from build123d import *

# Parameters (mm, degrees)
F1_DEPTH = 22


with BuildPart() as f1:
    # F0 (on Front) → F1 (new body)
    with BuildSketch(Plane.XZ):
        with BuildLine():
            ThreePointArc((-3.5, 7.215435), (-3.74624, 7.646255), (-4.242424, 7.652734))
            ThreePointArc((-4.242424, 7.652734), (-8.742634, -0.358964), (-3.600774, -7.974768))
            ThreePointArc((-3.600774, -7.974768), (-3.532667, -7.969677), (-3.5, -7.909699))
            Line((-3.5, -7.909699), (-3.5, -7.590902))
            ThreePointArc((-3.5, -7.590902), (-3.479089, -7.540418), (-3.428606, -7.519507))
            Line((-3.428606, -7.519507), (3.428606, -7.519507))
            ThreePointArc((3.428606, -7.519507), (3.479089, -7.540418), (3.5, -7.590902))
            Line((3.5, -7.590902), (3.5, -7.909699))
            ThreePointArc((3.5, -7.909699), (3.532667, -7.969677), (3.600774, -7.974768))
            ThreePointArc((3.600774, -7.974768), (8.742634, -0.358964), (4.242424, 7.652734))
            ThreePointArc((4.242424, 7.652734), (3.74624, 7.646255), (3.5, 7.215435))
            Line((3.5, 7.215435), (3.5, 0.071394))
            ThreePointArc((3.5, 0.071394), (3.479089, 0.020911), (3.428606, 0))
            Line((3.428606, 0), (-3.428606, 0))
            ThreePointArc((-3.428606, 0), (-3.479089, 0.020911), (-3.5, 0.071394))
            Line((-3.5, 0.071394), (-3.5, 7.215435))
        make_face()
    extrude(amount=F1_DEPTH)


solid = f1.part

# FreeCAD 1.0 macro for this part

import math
import FreeCAD as App
import Part
import Sketcher

doc = App.newDocument("Part")
body = doc.addObject("PartDesign::Body", "Body")

sketch1 = doc.addObject("Sketcher::SketchObject", "Sketch")
body.addObject(sketch1)
sketch1.AttachmentSupport = (doc.XZ_Plane, [""])
sketch1.MapMode = "FlatFace"
sketch1.addGeometry([
    Part.ArcOfCircle(Part.Circle(App.Vector(-4, 7.22, 0), App.Vector(0, 0, 1), 0.5), math.radians(0), math.radians(119)),
    Part.ArcOfCircle(Part.Circle(App.Vector(0, 0, 0), App.Vector(0, 0, 1), 8.75), math.radians(119), math.radians(246)),
    Part.ArcOfCircle(Part.Circle(App.Vector(-3.57, -7.91, 0), App.Vector(0, 0, 1), 0.07), math.radians(-114), math.radians(0)),
    Part.LineSegment(App.Vector(-3.5, -7.91, 0), App.Vector(-3.5, -7.59, 0)),
    Part.ArcOfCircle(Part.Circle(App.Vector(-3.43, -7.59, 0), App.Vector(0, 0, 1), 0.07), math.radians(90), math.radians(180)),
    Part.LineSegment(App.Vector(-3.43, -7.52, 0), App.Vector(3.43, -7.52, 0)),
    Part.ArcOfCircle(Part.Circle(App.Vector(3.43, -7.59, 0), App.Vector(0, 0, 1), 0.07), math.radians(0), math.radians(90)),
    Part.LineSegment(App.Vector(3.5, -7.59, 0), App.Vector(3.5, -7.91, 0)),
    Part.ArcOfCircle(Part.Circle(App.Vector(3.57, -7.91, 0), App.Vector(0, 0, 1), 0.07), math.radians(180), math.radians(294)),
    Part.ArcOfCircle(Part.Circle(App.Vector(0, 0, 0), App.Vector(0, 0, 1), 8.75), math.radians(-66), math.radians(61)),
    Part.ArcOfCircle(Part.Circle(App.Vector(4, 7.22, 0), App.Vector(0, 0, 1), 0.5), math.radians(61), math.radians(180)),
    Part.LineSegment(App.Vector(3.5, 7.22, 0), App.Vector(3.5, 0.07, 0)),
    Part.ArcOfCircle(Part.Circle(App.Vector(3.43, 0.07, 0), App.Vector(0, 0, 1), 0.07), math.radians(-90), math.radians(0)),
    Part.LineSegment(App.Vector(3.43, 0, 0), App.Vector(-3.43, 0, 0)),
    Part.ArcOfCircle(Part.Circle(App.Vector(-3.43, 0.07, 0), App.Vector(0, 0, 1), 0.07), math.radians(-180), math.radians(-90)),
    Part.LineSegment(App.Vector(-3.5, 0.07, 0), App.Vector(-3.5, 7.22, 0)),
], False)
sketch1.addConstraint([
    Sketcher.Constraint("Tangent", 0, 2, 1, 1),
    Sketcher.Constraint("Tangent", 1, 2, 2, 1),
    Sketcher.Constraint("Coincident", 2, 2, 3, 1),
    Sketcher.Constraint("Coincident", 3, 2, 4, 2),
    Sketcher.Constraint("Coincident", 4, 1, 5, 1),
    Sketcher.Constraint("Coincident", 5, 2, 6, 2),
    Sketcher.Constraint("Coincident", 6, 1, 7, 1),
    Sketcher.Constraint("Coincident", 7, 2, 8, 1),
    Sketcher.Constraint("Tangent", 8, 2, 9, 1),
    Sketcher.Constraint("Tangent", 9, 2, 10, 1),
    Sketcher.Constraint("Tangent", 10, 2, 11, 1),
    Sketcher.Constraint("Coincident", 11, 2, 12, 2),
    Sketcher.Constraint("Coincident", 12, 1, 13, 1),
    Sketcher.Constraint("Coincident", 13, 2, 14, 2),
    Sketcher.Constraint("Coincident", 14, 1, 15, 1),
    Sketcher.Constraint("Tangent", 15, 2, 0, 1),
    Sketcher.Constraint("Vertical", 3),
    Sketcher.Constraint("Horizontal", 5),
    Sketcher.Constraint("Vertical", 7),
    Sketcher.Constraint("Vertical", 11),
    Sketcher.Constraint("Horizontal", 13),
    Sketcher.Constraint("Vertical", 15),
    Sketcher.Constraint("Coincident", 1, 3, -1, 1),
    Sketcher.Constraint("Coincident", 9, 3, -1, 1),
    Sketcher.Constraint("Equal", 2, 4),
    Sketcher.Constraint("Equal", 4, 6),
    Sketcher.Constraint("Equal", 6, 8),
    Sketcher.Constraint("Equal", 1, 9),
    Sketcher.Constraint("Equal", 0, 10),
    Sketcher.Constraint("Equal", 8, 12),
    Sketcher.Constraint("Equal", 12, 14),
    Sketcher.Constraint("Symmetric", 12, 1, 13, 2, -1, 1),
    Sketcher.Constraint("Symmetric", 3, 2, 6, 1, -2),
    Sketcher.Constraint("Symmetric", 11, 2, 14, 1, -2),
    Sketcher.Constraint("Horizontal", 8, 3, 2, 2),
    Sketcher.Constraint("Horizontal", 6, 3, 3, 2),
    Sketcher.Constraint("Horizontal", 2, 2, 7, 2),
    Sketcher.Constraint("Horizontal", 14, 3, 11, 2),
    Sketcher.Constraint("Vertical", 6, 3, 12, 3),
    Sketcher.Constraint("Vertical", 14, 3, 4, 1),
    Sketcher.Constraint("Vertical", 12, 3, 5, 2),
    Sketcher.Constraint("Vertical", 5, 2, 12, 1),
    Sketcher.Constraint("Radius", 0, 0.5),
    Sketcher.Constraint("Radius", 1, 8.75),
    Sketcher.Constraint("DistanceX", 0, 3, -1, 1, 4.0),
    Sketcher.Constraint("Radius", 2, 0.071394),
    Sketcher.Constraint("DistanceY", 4, 3, -1, 1, 7.590902),
])
pad1 = doc.addObject("PartDesign::Pad", "Pad")
body.addObject(pad1)
pad1.Profile = sketch1
pad1.Length = 22

doc.recompute()
